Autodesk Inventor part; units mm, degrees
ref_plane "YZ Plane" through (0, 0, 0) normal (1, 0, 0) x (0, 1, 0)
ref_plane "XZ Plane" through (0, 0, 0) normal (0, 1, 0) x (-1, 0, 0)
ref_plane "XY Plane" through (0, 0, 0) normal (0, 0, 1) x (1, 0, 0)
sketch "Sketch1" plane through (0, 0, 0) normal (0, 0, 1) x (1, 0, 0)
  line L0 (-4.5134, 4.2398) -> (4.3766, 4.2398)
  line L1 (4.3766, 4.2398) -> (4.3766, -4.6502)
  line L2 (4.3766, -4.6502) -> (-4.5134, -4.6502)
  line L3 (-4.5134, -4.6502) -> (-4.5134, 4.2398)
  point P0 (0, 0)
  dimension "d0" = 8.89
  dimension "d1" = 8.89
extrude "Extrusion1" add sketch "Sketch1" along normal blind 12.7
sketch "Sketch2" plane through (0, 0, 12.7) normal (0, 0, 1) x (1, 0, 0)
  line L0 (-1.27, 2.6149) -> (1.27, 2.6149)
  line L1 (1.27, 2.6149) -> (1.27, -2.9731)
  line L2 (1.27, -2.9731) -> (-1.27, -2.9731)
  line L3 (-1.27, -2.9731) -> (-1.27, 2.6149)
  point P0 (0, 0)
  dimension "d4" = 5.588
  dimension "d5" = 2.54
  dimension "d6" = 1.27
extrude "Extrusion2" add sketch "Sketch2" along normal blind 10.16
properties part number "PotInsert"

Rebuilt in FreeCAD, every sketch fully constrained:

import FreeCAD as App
import Part
import Sketcher
from FreeCAD import Vector
Q = App.Units.Quantity

doc = App.newDocument("Part")
body = doc.addObject("PartDesign::Body", "Body")

# Sketch on XY plane
sketch1 = body.newObject("Sketcher::SketchObject", "Sketch")
sketch1.AttachmentSupport = (doc.getObject("XY_Plane"), [""])
sketch1.MapMode = "FlatFace"
sketch1.addGeometry(Part.LineSegment(Vector(4, 4, 0), Vector(-5, 4, 0)), False)
sketch1.addGeometry(Part.LineSegment(Vector(-5, 4, 0), Vector(-5, -5, 0)), False)
sketch1.addGeometry(Part.LineSegment(Vector(-5, -5, 0), Vector(4, -5, 0)), False)
sketch1.addGeometry(Part.LineSegment(Vector(4, -5, 0), Vector(4, 4, 0)), False)
sketch1.addConstraint(Sketcher.Constraint("Coincident", 0, 2, 1, 1))
sketch1.addConstraint(Sketcher.Constraint("Coincident", 1, 2, 2, 1))
sketch1.addConstraint(Sketcher.Constraint("Coincident", 2, 2, 3, 1))
sketch1.addConstraint(Sketcher.Constraint("Coincident", 3, 2, 0, 1))
sketch1.addConstraint(Sketcher.Constraint("Horizontal", 0))
sketch1.addConstraint(Sketcher.Constraint("Vertical", 1))
sketch1.addConstraint(Sketcher.Constraint("Horizontal", 2))
sketch1.addConstraint(Sketcher.Constraint("Vertical", 3))
sketch1.addConstraint(Sketcher.Constraint("Equal", 2, 1))
sketch1.addConstraint(Sketcher.Constraint("DistanceX", 0, 2, 0, 1, Q("0.35 in")))
sketch1.addConstraint(Sketcher.Constraint("DistanceX", 0, 2, -1, 1, Q("0.1777 in")))
sketch1.addConstraint(Sketcher.Constraint("DistanceY", -1, 1, 0, 2, Q("4.2398 mm")))
pad1 = body.newObject("PartDesign::Pad", "Pad")
pad1.Profile = sketch1
pad1.Length = Q("0.5 in")

# Sketch on XY plane
sketch2 = body.newObject("Sketcher::SketchObject", "Sketch001")
sketch2.AttachmentSupport = (doc.getObject("XY_Plane"), [""])
sketch2.MapMode = "FlatFace"
sketch2.AttachmentOffset = App.Placement(Vector(0, 0, 0.5 * 25.4), App.Rotation())
sketch2.addGeometry(Part.LineSegment(Vector(1.3, 2.6, 0), Vector(-1.3, 2.6, 0)), False)
sketch2.addGeometry(Part.LineSegment(Vector(-1.3, 2.6, 0), Vector(-1.3, -3, 0)), False)
sketch2.addGeometry(Part.LineSegment(Vector(-1.3, -3, 0), Vector(1.3, -3, 0)), False)
sketch2.addGeometry(Part.LineSegment(Vector(1.3, -3, 0), Vector(1.3, 2.6, 0)), False)
sketch2.addConstraint(Sketcher.Constraint("Coincident", 0, 2, 1, 1))
sketch2.addConstraint(Sketcher.Constraint("Coincident", 1, 2, 2, 1))
sketch2.addConstraint(Sketcher.Constraint("Coincident", 2, 2, 3, 1))
sketch2.addConstraint(Sketcher.Constraint("Coincident", 3, 2, 0, 1))
sketch2.addConstraint(Sketcher.Constraint("Horizontal", 0))
sketch2.addConstraint(Sketcher.Constraint("Vertical", 1))
sketch2.addConstraint(Sketcher.Constraint("Horizontal", 2))
sketch2.addConstraint(Sketcher.Constraint("Vertical", 3))
sketch2.addConstraint(Sketcher.Constraint("DistanceX", 0, 2, 0, 1, Q("0.1 in")))
sketch2.addConstraint(Sketcher.Constraint("DistanceY", 1, 2, 1, 1, Q("0.22 in")))
sketch2.addConstraint(Sketcher.Constraint("DistanceX", 0, 2, -1, 1, Q("0.05 in")))
sketch2.addConstraint(Sketcher.Constraint("DistanceY", -1, 1, 0, 2, Q("2.615 mm")))
pad2 = body.newObject("PartDesign::Pad", "Pad001")
pad2.Profile = sketch2
pad2.Length = Q("0.4 in")

doc.recompute()
